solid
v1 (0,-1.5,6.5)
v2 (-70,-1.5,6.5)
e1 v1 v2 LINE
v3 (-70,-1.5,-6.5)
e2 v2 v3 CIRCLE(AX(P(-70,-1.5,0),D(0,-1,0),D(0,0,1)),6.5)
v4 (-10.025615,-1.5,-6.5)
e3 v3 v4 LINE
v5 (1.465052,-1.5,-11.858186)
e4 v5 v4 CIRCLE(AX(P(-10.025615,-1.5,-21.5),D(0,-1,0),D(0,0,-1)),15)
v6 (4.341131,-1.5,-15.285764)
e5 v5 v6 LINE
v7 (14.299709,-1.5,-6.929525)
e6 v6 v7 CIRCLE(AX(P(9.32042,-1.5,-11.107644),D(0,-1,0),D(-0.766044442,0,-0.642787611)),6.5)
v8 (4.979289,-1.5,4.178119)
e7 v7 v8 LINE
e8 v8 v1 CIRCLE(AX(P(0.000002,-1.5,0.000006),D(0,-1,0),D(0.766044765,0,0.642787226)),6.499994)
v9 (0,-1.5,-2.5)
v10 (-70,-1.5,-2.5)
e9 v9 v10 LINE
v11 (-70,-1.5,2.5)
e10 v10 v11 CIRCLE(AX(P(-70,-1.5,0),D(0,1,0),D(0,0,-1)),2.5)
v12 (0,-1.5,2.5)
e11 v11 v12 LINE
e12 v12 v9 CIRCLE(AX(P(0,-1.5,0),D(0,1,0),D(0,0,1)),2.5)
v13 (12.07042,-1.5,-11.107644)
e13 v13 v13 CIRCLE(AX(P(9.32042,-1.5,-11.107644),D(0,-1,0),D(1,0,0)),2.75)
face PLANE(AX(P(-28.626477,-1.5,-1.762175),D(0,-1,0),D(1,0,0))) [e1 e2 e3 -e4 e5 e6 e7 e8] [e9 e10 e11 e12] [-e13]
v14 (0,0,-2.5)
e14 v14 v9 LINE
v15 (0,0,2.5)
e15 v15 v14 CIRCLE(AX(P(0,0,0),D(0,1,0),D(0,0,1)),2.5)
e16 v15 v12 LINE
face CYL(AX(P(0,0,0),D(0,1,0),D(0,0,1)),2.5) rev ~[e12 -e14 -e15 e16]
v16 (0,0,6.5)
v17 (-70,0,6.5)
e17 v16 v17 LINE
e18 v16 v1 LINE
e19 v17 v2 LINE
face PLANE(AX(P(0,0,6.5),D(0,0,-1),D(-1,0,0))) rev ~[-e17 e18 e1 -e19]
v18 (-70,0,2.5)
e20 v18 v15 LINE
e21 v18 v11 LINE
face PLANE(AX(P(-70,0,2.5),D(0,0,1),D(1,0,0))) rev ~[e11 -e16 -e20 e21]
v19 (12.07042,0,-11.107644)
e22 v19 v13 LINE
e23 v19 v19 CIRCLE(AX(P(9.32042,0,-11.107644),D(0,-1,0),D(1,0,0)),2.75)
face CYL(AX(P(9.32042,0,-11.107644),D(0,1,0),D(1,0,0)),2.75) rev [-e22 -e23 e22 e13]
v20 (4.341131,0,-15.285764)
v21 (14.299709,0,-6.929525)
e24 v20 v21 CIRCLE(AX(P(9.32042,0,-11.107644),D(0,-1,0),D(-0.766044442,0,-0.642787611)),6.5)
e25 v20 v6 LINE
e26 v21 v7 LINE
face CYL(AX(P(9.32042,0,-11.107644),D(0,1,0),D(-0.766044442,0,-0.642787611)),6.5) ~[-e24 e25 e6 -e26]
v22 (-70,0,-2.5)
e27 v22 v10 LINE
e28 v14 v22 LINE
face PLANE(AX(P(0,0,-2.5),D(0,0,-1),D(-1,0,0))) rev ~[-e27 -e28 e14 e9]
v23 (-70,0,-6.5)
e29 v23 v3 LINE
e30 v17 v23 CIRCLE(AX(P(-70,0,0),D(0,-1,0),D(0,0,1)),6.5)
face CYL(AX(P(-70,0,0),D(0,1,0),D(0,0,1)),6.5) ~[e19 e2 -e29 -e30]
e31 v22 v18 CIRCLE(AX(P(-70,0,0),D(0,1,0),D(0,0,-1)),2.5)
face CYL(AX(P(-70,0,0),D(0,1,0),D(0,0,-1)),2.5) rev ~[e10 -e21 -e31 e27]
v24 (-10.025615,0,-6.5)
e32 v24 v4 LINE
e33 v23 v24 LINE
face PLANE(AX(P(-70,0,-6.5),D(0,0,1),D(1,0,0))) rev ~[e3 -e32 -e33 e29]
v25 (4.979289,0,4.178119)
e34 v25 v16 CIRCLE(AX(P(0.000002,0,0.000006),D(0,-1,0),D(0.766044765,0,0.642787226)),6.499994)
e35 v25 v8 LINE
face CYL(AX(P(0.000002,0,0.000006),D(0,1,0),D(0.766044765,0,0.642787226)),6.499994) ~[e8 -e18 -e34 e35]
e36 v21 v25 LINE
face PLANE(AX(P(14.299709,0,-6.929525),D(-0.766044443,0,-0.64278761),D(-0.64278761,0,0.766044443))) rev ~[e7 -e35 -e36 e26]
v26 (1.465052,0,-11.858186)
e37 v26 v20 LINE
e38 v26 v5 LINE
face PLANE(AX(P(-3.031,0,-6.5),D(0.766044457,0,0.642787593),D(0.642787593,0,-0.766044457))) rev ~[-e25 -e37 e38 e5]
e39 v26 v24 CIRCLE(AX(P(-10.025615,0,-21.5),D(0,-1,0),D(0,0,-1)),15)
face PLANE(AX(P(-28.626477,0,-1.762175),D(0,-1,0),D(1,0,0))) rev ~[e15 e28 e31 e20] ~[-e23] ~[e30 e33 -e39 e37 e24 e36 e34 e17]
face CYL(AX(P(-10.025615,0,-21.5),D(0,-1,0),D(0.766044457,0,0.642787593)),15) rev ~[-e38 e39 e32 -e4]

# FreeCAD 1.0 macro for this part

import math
import FreeCAD as App
import Part
import Sketcher
from FreeCAD import Vector
Q = App.Units.Quantity


def edges_at(feature, points):
    """Names of the edges that pass closest to the given points."""
    edges = feature.Shape.Edges
    near = lambda p: min(range(len(edges)), key=lambda i: edges[i].distToShape(Part.Vertex(*p))[0])
    return sorted({f"Edge{near(p) + 1}" for p in points})

doc = App.newDocument("Part")
body = doc.addObject("PartDesign::Body", "Body")

# Sketch on XZ plane
sketch1 = doc.addObject("Sketcher::SketchObject", "Sketch")
body.addObject(sketch1)
sketch1.AttachmentSupport = (doc.XZ_Plane, [""])
sketch1.MapMode = "FlatFace"
sketch1.addGeometry(Part.ArcOfCircle(Part.Circle(Vector(0, 0, 0), Vector(0, 0, 1), 6.5), math.radians(40), math.radians(90)), False)
sketch1.addGeometry(Part.LineSegment(Vector(0, 6.5, 0), Vector(-70, 6.5, 0)), False)
sketch1.addGeometry(Part.ArcOfCircle(Part.Circle(Vector(-70, 0, 0), Vector(0, 0, 1), 6.5), math.radians(90), math.radians(270)), False)
sketch1.addGeometry(Part.LineSegment(Vector(-70, -6.5, 0), Vector(-3, -6.5, 0)), False)
sketch1.addGeometry(Part.LineSegment(Vector(-3, -6.5, 0), Vector(4.3, -15.3, 0)), False)
sketch1.addGeometry(Part.ArcOfCircle(Part.Circle(Vector(9.3, -11.1, 0), Vector(0, 0, 1), 6.5), math.radians(-140), math.radians(40)), False)
sketch1.addGeometry(Part.LineSegment(Vector(14.3, -6.9, 0), Vector(5, 4.2, 0)), False)
sketch1.addGeometry(Part.Circle(Vector(9.3, -11.1, 0), Vector(0, 0, 1), 2.8), False)
sketch1.addGeometry(Part.ArcOfCircle(Part.Circle(Vector(-70, 0, 0), Vector(0, 0, 1), 2.5), math.radians(90), math.radians(270)), False)
sketch1.addGeometry(Part.LineSegment(Vector(-70, 2.5, 0), Vector(0, 2.5, 0)), False)
sketch1.addGeometry(Part.ArcOfCircle(Part.Circle(Vector(0, 0, 0), Vector(0, 0, 1), 2.5), math.radians(-90), math.radians(90)), False)
sketch1.addGeometry(Part.LineSegment(Vector(0, -2.5, 0), Vector(-70, -2.5, 0)), False)
sketch1.addConstraint(Sketcher.Constraint("Tangent", 0, 2, 1, 1))
sketch1.addConstraint(Sketcher.Constraint("Tangent", 1, 2, 2, 1))
sketch1.addConstraint(Sketcher.Constraint("Tangent", 2, 2, 3, 1))
sketch1.addConstraint(Sketcher.Constraint("Coincident", 3, 2, 4, 1))
sketch1.addConstraint(Sketcher.Constraint("Tangent", 4, 2, 5, 1))
sketch1.addConstraint(Sketcher.Constraint("Tangent", 5, 2, 6, 1))
sketch1.addConstraint(Sketcher.Constraint("Tangent", 6, 2, 0, 1))
sketch1.addConstraint(Sketcher.Constraint("Tangent", 8, 1, 9, 1))
sketch1.addConstraint(Sketcher.Constraint("Tangent", 9, 2, 10, 2))
sketch1.addConstraint(Sketcher.Constraint("Tangent", 10, 1, 11, 1))
sketch1.addConstraint(Sketcher.Constraint("Tangent", 11, 2, 8, 2))
sketch1.addConstraint(Sketcher.Constraint("Horizontal", 1))
sketch1.addConstraint(Sketcher.Constraint("Horizontal", 3))
sketch1.addConstraint(Sketcher.Constraint("Horizontal", 9))
sketch1.addConstraint(Sketcher.Constraint("Horizontal", 11))
sketch1.addConstraint(Sketcher.Constraint("Coincident", 0, 3, -1, 1))
sketch1.addConstraint(Sketcher.Constraint("Coincident", 10, 3, -1, 1))
sketch1.addConstraint(Sketcher.Constraint("Coincident", 7, 3, 5, 3))
sketch1.addConstraint(Sketcher.Constraint("Coincident", 8, 3, 2, 3))
sketch1.addConstraint(Sketcher.Constraint("Equal", 2, 5))
sketch1.addConstraint(Sketcher.Constraint("Parallel", 4, 6))
sketch1.addConstraint(Sketcher.Constraint("Diameter", 7, Q("5.5 mm")))
sketch1.addConstraint(Sketcher.Constraint("Radius", 2, Q("6.5 mm")))
sketch1.addConstraint(Sketcher.Constraint("Radius", 8, Q("2.5 mm")))
sketch1.addConstraint(Sketcher.Constraint("DistanceX", 1, 2, 1, 1, Q("70 mm")))
sketch1.addConstraint(Sketcher.Constraint("Angle", 4, Q("-50.000001 deg")))
sketch1.addConstraint(Sketcher.Constraint("Distance", 6, Q("14.499999 mm")))
pad1 = doc.addObject("PartDesign::Pad", "Pad")
body.addObject(pad1)
pad1.Profile = sketch1
pad1.Length = 1.5
doc.recompute()

fillet = doc.addObject("PartDesign::Fillet", "Fillet")
body.addObject(fillet)
fillet.Base = (pad1, edges_at(pad1, [(-3.031, -0.75, -6.5)]))
fillet.Radius = 15

doc.recompute()
